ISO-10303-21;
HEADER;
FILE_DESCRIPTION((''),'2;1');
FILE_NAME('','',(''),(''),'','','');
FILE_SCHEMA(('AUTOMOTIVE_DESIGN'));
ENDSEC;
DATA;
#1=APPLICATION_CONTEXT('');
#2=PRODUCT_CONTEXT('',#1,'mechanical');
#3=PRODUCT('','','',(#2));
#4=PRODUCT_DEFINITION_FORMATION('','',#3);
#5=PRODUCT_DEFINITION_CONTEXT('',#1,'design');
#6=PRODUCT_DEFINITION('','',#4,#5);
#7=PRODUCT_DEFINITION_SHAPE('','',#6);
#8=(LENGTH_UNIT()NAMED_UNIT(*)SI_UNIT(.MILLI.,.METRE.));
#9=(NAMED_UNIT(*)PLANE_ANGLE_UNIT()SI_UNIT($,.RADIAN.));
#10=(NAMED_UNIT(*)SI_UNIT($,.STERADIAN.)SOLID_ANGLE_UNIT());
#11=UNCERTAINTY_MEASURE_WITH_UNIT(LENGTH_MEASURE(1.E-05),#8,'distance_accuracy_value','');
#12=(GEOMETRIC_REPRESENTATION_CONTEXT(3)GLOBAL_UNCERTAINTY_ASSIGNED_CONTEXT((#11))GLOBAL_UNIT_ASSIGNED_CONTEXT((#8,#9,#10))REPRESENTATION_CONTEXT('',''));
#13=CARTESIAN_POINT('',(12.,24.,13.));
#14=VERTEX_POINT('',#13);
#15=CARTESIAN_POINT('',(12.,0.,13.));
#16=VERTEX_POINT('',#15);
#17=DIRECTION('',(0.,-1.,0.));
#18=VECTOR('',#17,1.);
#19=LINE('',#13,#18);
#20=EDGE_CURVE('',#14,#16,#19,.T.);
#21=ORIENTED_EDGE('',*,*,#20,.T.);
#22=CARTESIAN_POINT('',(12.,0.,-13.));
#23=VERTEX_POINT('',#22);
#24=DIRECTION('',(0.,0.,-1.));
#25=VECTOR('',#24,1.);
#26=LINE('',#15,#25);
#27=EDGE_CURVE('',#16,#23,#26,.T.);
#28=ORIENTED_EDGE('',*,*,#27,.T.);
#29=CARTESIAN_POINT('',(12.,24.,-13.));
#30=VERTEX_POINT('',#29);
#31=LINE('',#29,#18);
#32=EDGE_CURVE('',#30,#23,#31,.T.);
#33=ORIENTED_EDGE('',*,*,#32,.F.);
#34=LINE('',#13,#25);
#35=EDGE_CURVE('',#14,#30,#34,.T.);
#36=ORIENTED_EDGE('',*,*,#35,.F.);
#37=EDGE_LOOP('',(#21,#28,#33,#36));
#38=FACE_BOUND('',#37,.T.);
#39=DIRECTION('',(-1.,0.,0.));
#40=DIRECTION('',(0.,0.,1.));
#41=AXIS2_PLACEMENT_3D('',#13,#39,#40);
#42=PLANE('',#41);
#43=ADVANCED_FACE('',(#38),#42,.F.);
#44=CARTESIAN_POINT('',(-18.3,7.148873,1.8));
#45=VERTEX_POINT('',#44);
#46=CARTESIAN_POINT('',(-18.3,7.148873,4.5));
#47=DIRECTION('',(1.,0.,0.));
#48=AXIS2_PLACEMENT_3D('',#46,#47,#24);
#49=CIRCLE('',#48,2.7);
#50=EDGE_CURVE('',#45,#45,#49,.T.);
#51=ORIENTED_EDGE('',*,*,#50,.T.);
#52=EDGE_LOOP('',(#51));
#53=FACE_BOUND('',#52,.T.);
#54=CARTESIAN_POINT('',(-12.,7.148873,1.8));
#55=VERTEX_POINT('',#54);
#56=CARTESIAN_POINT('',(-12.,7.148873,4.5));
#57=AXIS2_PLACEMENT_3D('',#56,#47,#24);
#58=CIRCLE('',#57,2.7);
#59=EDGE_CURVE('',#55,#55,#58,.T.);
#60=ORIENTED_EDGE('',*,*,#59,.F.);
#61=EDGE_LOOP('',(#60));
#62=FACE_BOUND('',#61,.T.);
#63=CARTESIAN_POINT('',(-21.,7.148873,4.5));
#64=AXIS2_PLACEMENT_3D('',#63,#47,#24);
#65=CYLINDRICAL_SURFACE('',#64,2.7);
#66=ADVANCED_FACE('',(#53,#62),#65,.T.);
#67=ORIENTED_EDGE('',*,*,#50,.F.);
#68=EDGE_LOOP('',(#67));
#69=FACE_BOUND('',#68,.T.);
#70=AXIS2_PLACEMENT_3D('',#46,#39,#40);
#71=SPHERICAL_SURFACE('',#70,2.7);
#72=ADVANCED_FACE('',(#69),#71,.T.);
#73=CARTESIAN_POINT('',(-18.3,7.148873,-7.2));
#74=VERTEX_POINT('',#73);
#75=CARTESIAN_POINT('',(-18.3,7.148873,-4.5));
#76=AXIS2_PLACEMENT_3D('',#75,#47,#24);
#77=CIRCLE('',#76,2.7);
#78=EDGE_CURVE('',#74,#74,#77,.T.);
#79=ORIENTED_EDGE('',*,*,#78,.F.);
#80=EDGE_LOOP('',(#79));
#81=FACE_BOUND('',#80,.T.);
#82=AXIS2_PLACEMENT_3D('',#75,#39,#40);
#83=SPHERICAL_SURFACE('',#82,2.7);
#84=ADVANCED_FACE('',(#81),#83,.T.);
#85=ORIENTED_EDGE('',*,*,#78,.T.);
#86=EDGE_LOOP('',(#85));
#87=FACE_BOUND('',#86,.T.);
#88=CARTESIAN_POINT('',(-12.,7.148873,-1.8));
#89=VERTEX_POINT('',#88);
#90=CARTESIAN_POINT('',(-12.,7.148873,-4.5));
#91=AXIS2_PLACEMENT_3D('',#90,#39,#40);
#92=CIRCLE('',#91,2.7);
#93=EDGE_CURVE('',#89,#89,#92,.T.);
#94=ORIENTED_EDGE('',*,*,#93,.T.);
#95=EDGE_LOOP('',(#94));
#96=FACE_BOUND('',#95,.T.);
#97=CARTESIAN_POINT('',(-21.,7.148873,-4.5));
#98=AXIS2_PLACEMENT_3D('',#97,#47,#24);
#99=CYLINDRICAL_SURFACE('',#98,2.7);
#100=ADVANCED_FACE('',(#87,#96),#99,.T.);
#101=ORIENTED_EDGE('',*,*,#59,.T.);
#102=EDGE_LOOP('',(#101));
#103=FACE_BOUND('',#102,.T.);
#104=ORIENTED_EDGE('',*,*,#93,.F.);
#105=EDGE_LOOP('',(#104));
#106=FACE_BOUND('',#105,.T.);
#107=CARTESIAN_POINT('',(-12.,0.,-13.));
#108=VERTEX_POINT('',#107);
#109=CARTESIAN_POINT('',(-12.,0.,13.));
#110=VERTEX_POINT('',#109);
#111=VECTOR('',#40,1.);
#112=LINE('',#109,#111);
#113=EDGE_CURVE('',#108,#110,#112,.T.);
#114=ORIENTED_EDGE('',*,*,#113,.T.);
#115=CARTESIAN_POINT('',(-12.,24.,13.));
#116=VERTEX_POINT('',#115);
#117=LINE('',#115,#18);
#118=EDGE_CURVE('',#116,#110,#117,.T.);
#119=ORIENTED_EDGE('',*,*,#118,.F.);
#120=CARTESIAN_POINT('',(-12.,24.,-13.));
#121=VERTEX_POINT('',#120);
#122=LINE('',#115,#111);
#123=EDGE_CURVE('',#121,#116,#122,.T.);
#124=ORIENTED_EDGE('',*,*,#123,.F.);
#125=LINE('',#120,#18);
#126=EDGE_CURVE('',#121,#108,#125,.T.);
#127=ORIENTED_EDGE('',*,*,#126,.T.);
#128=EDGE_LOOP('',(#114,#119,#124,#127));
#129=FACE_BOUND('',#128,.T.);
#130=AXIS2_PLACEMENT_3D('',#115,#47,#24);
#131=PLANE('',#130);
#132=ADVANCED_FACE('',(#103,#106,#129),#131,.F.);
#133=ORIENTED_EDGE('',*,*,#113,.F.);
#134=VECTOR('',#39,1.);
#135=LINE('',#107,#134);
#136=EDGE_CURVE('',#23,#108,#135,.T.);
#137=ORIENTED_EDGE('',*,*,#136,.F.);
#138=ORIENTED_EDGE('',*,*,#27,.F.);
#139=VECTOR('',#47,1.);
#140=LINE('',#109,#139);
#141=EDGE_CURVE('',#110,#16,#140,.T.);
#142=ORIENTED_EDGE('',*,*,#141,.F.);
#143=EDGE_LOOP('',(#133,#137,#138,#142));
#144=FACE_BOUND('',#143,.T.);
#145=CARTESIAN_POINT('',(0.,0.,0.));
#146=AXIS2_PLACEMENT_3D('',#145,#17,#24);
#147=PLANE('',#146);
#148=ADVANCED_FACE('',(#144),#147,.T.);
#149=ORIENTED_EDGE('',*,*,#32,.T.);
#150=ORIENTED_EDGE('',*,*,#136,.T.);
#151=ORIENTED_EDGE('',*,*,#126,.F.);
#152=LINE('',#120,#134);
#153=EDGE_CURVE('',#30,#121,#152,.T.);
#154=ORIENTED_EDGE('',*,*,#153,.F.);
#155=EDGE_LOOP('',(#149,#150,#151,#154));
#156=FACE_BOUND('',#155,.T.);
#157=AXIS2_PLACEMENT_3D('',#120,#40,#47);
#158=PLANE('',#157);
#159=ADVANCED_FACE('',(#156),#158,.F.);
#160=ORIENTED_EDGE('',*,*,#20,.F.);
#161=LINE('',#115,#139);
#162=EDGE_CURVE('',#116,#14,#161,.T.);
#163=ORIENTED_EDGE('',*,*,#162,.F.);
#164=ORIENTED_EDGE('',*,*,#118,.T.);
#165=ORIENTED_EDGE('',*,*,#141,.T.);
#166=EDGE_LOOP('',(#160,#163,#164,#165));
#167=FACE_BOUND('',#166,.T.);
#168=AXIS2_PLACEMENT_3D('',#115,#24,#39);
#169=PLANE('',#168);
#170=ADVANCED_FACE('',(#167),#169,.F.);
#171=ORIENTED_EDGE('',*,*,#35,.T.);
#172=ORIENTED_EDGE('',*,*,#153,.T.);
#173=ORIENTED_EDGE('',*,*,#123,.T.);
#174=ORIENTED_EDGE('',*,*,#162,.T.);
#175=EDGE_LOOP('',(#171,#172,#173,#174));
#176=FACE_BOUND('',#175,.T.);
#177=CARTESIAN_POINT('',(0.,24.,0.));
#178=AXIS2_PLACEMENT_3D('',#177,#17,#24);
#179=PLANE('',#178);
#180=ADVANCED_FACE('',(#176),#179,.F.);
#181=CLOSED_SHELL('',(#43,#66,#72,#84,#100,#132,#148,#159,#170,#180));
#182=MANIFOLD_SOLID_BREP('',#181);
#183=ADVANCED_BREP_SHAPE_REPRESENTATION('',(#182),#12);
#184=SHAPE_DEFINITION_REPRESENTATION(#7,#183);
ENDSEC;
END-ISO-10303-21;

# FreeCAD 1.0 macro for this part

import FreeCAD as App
import Part
import Sketcher

V = App.Vector


def edges_at(feature, points):
    """Names of the edges that pass closest to the given points."""
    edges = feature.Shape.Edges
    near = lambda p: min(range(len(edges)), key=lambda i: edges[i].distToShape(Part.Vertex(*p))[0])
    return sorted({f"Edge{near(p) + 1}" for p in points})

doc = App.newDocument("Part")
body = doc.addObject("PartDesign::Body", "Body")

# Sketch on XZ plane
sketch1 = body.newObject("Sketcher::SketchObject", "Sketch")
sketch1.AttachmentSupport = (doc.getObject("XZ_Plane"), [""])
sketch1.MapMode = "FlatFace"
sketch1.addGeometry(Part.LineSegment(V(-12, -13, 0), V(-12, 13, 0)), False)
sketch1.addGeometry(Part.LineSegment(V(-12, 13, 0), V(12, 13, 0)), False)
sketch1.addGeometry(Part.LineSegment(V(12, 13, 0), V(12, -13, 0)), False)
sketch1.addGeometry(Part.LineSegment(V(12, -13, 0), V(-12, -13, 0)), False)
sketch1.addConstraint(Sketcher.Constraint("Coincident", 0, 2, 1, 1))
sketch1.addConstraint(Sketcher.Constraint("Coincident", 1, 2, 2, 1))
sketch1.addConstraint(Sketcher.Constraint("Coincident", 2, 2, 3, 1))
sketch1.addConstraint(Sketcher.Constraint("Coincident", 3, 2, 0, 1))
sketch1.addConstraint(Sketcher.Constraint("Vertical", 0))
sketch1.addConstraint(Sketcher.Constraint("Horizontal", 1))
sketch1.addConstraint(Sketcher.Constraint("Vertical", 2))
sketch1.addConstraint(Sketcher.Constraint("Horizontal", 3))
sketch1.addConstraint(Sketcher.Constraint("Symmetric", 0, 2, 2, 2, -1, 1))
sketch1.addConstraint(Sketcher.Constraint("DistanceX", 1, 1, 1, 2, 24.0))
sketch1.addConstraint(Sketcher.Constraint("DistanceY", 0, 1, 0, 2, 26.0))
pad1 = body.newObject("PartDesign::Pad", "Pad")
pad1.Profile = sketch1
pad1.Length = 24
pad1.Reversed = True

# Sketch on YZ plane
sketch2 = body.newObject("Sketcher::SketchObject", "Sketch001")
sketch2.AttachmentSupport = (doc.getObject("YZ_Plane"), [""])
sketch2.MapMode = "FlatFace"
sketch2.AttachmentOffset = App.Placement(V(0, 0, -12), App.Rotation())
sketch2.addGeometry(Part.Circle(V(7.1, -4.5, 0), V(0, 0, 1), 2.7), False)
sketch2.addConstraint(Sketcher.Constraint("Diameter", 0, 5.4))
sketch2.addConstraint(Sketcher.Constraint("DistanceY", 0, 3, -1, 1, 4.5))
sketch2.addConstraint(Sketcher.Constraint("DistanceX", -1, 1, 0, 3, 7.148873))
pad2 = body.newObject("PartDesign::Pad", "Pad001")
pad2.Profile = sketch2
pad2.Length = 9
pad2.Reversed = True
doc.recompute()

fillet = body.newObject("PartDesign::Fillet", "Fillet")
fillet.Base = (pad2, edges_at(pad2, [(-21, 7.149, -7.2)]))
fillet.Radius = 2.7
doc.recompute()

mirrored = body.newObject("PartDesign::Mirrored", "Mirrored")
mirrored.Originals = [pad2]
mirrored.MirrorPlane = (doc.getObject("XY_Plane"), [""])
body.Tip = mirrored
doc.recompute()

fillet2 = body.newObject("PartDesign::Fillet", "Fillet001")
fillet2.Base = (mirrored, edges_at(mirrored, [(-21, 7.149, 7.2)]))
fillet2.Radius = 2.7

doc.recompute()
